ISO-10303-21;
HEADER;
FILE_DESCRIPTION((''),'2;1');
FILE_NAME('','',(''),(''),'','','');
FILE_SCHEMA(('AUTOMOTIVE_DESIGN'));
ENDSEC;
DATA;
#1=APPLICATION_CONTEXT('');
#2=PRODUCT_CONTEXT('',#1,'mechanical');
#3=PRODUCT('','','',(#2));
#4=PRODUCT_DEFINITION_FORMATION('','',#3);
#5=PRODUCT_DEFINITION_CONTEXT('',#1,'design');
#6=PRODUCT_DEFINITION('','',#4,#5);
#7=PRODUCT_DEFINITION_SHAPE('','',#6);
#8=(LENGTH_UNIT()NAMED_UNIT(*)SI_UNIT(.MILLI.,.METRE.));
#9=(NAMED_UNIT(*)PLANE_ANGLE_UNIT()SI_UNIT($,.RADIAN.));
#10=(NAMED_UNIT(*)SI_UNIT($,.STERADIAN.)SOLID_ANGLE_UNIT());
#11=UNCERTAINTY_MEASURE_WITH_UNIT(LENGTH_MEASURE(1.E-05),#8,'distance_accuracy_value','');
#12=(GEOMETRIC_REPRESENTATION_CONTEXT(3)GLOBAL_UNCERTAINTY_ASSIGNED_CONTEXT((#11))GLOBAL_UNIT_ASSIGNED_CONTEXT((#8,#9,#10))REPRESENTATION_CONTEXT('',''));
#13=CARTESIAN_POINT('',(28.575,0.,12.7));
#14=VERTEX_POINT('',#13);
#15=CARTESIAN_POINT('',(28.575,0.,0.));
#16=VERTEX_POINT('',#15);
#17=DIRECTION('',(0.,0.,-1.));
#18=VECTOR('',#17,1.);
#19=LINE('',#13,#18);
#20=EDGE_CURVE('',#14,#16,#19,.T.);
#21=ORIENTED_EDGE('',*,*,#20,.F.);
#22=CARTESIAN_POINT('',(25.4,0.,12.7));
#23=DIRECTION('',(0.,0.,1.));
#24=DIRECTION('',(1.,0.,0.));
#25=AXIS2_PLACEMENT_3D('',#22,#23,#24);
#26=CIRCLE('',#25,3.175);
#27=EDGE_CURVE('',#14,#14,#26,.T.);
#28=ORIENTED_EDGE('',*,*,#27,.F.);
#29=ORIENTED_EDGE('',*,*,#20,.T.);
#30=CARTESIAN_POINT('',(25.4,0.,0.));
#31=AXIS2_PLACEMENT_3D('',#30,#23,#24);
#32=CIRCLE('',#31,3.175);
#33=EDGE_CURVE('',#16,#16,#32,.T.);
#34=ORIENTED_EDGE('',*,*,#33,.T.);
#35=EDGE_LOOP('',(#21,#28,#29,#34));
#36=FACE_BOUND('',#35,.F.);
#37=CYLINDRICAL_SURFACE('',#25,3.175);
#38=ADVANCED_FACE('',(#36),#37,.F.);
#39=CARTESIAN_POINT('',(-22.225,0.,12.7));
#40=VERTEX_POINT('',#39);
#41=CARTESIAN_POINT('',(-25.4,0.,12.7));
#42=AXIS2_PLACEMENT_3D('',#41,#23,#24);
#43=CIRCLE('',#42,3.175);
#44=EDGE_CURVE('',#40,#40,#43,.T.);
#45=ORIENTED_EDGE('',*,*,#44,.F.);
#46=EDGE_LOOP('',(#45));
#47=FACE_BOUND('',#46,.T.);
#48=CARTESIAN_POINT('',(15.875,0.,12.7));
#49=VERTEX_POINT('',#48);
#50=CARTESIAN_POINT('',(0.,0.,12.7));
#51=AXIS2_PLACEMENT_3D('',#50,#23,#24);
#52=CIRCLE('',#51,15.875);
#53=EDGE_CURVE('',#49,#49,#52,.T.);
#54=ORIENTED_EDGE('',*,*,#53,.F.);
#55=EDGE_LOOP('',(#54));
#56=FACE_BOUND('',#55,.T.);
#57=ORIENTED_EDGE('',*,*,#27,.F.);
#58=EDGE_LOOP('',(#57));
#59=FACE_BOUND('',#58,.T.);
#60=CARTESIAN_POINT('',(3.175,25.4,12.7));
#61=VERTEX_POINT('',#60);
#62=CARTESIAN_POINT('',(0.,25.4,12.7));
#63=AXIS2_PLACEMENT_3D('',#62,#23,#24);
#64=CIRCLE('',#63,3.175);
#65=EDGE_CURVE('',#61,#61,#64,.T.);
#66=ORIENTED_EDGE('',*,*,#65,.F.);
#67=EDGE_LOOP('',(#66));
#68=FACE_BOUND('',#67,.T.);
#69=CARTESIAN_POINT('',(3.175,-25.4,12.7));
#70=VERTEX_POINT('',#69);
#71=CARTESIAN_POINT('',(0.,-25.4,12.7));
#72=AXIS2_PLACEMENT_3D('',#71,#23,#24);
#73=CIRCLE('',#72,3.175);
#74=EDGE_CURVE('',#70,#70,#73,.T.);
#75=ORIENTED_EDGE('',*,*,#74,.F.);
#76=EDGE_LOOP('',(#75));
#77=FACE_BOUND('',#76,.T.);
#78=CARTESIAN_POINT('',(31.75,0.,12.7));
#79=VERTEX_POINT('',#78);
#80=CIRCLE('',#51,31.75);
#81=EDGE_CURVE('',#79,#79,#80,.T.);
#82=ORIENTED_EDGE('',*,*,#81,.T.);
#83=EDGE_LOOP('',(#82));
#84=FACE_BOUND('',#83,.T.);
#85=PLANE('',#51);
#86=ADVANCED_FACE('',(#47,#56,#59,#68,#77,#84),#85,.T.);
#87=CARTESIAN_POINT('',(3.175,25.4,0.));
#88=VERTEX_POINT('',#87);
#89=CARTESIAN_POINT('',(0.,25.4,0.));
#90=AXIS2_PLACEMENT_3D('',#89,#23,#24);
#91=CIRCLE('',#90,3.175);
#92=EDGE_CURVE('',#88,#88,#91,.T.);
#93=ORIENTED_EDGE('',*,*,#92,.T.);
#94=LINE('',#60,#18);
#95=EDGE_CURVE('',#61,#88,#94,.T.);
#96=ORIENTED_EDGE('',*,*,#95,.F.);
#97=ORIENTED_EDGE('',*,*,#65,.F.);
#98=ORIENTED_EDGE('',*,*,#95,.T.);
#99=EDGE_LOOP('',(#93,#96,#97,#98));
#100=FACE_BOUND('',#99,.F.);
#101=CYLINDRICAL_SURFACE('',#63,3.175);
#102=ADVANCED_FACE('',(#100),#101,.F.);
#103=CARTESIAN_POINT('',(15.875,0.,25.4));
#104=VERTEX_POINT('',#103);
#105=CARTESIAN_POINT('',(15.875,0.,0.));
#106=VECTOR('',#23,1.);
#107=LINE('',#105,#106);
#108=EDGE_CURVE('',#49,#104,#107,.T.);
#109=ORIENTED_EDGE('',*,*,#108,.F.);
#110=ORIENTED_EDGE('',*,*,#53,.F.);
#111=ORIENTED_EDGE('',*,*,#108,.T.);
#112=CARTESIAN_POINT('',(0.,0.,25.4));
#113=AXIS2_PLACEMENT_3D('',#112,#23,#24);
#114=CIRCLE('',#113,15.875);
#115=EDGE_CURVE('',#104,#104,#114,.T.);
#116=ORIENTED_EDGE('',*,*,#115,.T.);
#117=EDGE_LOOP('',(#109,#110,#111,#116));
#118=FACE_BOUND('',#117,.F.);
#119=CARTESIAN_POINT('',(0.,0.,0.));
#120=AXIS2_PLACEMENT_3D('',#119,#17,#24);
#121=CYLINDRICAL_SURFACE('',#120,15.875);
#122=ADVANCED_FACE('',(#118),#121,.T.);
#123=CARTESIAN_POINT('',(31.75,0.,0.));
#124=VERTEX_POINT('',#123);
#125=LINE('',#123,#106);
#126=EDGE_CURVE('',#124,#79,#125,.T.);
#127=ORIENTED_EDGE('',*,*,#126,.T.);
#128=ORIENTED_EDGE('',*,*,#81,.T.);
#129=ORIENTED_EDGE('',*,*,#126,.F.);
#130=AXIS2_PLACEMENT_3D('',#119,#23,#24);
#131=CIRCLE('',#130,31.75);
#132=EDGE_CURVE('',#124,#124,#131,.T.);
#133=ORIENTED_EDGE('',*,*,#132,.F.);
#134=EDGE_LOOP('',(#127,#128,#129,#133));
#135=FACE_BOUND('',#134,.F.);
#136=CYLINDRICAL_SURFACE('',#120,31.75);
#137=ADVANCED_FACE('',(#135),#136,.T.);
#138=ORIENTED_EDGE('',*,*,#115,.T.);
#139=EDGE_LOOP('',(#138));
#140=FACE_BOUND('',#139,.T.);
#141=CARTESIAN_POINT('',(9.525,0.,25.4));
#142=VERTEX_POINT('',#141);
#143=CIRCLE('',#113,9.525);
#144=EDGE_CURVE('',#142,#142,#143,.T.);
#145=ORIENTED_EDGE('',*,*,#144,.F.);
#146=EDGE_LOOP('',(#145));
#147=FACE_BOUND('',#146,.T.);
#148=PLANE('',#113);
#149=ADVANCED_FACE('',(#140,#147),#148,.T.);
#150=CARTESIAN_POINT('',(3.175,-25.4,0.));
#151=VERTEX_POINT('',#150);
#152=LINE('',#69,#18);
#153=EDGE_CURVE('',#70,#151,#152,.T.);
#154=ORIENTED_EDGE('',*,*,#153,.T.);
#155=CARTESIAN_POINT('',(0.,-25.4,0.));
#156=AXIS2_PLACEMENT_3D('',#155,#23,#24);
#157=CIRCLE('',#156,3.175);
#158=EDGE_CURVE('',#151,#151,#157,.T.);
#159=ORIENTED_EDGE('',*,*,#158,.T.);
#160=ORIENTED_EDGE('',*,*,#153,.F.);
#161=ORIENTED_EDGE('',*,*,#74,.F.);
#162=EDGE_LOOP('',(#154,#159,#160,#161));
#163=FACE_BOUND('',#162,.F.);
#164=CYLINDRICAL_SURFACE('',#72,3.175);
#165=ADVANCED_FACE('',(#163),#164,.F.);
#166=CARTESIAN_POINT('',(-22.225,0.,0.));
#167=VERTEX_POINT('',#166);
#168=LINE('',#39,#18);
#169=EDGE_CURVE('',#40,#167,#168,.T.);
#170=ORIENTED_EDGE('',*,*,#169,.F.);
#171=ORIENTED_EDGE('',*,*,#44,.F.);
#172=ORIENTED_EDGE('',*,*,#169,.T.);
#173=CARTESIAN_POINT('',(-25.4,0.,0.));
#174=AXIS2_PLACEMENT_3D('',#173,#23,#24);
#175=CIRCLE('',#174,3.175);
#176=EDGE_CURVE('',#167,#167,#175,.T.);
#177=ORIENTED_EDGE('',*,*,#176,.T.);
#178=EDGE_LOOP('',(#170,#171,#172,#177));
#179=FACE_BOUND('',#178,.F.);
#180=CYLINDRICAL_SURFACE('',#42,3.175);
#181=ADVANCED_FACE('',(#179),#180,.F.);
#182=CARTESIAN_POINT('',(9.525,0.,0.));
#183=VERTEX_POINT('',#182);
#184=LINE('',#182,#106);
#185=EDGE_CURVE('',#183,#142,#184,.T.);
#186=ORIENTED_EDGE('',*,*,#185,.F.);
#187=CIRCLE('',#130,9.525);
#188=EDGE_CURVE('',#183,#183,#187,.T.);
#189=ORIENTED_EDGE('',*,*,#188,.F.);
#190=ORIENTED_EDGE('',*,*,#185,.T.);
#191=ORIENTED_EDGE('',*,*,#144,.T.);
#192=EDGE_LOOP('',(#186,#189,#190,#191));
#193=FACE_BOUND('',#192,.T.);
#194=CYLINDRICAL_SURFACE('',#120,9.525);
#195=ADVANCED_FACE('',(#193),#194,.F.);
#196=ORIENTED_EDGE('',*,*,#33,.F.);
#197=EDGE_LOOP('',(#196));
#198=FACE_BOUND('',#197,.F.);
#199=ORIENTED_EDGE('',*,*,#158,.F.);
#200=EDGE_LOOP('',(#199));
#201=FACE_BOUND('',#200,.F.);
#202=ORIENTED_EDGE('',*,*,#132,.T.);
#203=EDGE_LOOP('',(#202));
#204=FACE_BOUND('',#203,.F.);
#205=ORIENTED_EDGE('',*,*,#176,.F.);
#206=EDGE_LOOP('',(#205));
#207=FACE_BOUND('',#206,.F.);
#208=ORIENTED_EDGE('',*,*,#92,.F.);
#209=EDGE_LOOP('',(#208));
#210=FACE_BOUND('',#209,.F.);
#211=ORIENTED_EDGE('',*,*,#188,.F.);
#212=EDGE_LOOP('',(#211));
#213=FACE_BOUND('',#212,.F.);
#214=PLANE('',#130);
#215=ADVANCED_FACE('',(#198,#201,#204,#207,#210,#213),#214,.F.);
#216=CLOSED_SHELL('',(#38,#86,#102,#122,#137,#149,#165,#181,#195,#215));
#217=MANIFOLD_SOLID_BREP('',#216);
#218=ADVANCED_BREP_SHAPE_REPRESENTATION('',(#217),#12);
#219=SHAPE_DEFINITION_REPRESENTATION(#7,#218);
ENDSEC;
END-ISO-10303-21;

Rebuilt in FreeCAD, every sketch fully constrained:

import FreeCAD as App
import Part
import Sketcher
Q = App.Units.Quantity

doc = App.newDocument("Part")
params = doc.addObject("Spreadsheet::Sheet", "Params")
for row, (alias, value) in enumerate([
    ("sketch1_diameter", "1.25 in"),
    ("sketch1_diameter2", "0.75 in"),
    ("pad1_length", "1 in"),
    ("sketch2_diameter", "2.5 in"),
    ("sketch2_diameter2", "1.25 in"),
    ("pad2_length", "0.5 in"),
    ("sketch3_diameter", "0.25 in"),
], start=1):
    params.set(f"A{row}", alias)
    params.set(f"B{row}", "=" + value)
    params.setAlias(f"B{row}", alias)

body = doc.addObject("PartDesign::Body", "Body")

sketch1 = doc.addObject("Sketcher::SketchObject", "Sketch")
body.addObject(sketch1)
sketch1.AttachmentSupport = (doc.XY_Plane, [""])
sketch1.MapMode = "FlatFace"
sketch1.addGeometry([
    Part.Circle(App.Vector(0, 0, 0), App.Vector(0, 0, 1), 16),
    Part.Circle(App.Vector(0, 0, 0), App.Vector(0, 0, 1), 10),
], False)
sketch1.addConstraint([
    Sketcher.Constraint("Coincident", 0, 3, -1, 1),
    Sketcher.Constraint("Coincident", 1, 3, -1, 1),
    Sketcher.Constraint("Diameter", 0, Q("1.25 in")),
    Sketcher.Constraint("Diameter", 1, Q("0.75 in")),
])
sketch1.setExpression("Constraints[2]", "Params.sketch1_diameter")
sketch1.setExpression("Constraints[3]", "Params.sketch1_diameter2")
pad1 = doc.addObject("PartDesign::Pad", "Pad")
body.addObject(pad1)
pad1.Profile = sketch1
pad1.setExpression("Length", "Params.pad1_length")

sketch2 = doc.addObject("Sketcher::SketchObject", "Sketch001")
body.addObject(sketch2)
sketch2.AttachmentSupport = (doc.XY_Plane, [""])
sketch2.MapMode = "FlatFace"
sketch2.addGeometry([
    Part.Circle(App.Vector(0, 0, 0), App.Vector(0, 0, 1), 32),
    Part.Circle(App.Vector(0, 0, 0), App.Vector(0, 0, 1), 16),
], False)
sketch2.addConstraint([
    Sketcher.Constraint("Coincident", 0, 3, -1, 1),
    Sketcher.Constraint("Coincident", 1, 3, -1, 1),
    Sketcher.Constraint("Diameter", 0, Q("2.5 in")),
    Sketcher.Constraint("Diameter", 1, Q("1.25 in")),
])
sketch2.setExpression("Constraints[2]", "Params.sketch2_diameter")
sketch2.setExpression("Constraints[3]", "Params.sketch2_diameter2")
pad2 = doc.addObject("PartDesign::Pad", "Pad001")
body.addObject(pad2)
pad2.Profile = sketch2
pad2.setExpression("Length", "Params.pad2_length")

sketch3 = doc.addObject("Sketcher::SketchObject", "Sketch002")
body.addObject(sketch3)
sketch3.AttachmentSupport = (doc.XY_Plane, [""])
sketch3.MapMode = "FlatFace"
sketch3.AttachmentOffset = App.Placement(App.Vector(0, 0, 0.5 * 25.4), App.Rotation())
sketch3.addGeometry([
    Part.Circle(App.Vector(0, 25.4, 0), App.Vector(0, 0, 1), 3.2),
    Part.Circle(App.Vector(25.4, 0, 0), App.Vector(0, 0, 1), 3.2),
    Part.Circle(App.Vector(0, -25.4, 0), App.Vector(0, 0, 1), 3.2),
    Part.Circle(App.Vector(-25.4, 0, 0), App.Vector(0, 0, 1), 3.2),
], False)
sketch3.addConstraint([
    Sketcher.Constraint("Equal", 0, 1),
    Sketcher.Constraint("Equal", 1, 2),
    Sketcher.Constraint("Equal", 2, 3),
    Sketcher.Constraint("Symmetric", 0, 3, 2, 3, -1, 1),
    Sketcher.Constraint("Symmetric", 1, 3, 3, 3, -1, 1),
    Sketcher.Constraint("PointOnObject", 0, 3, -2),
    Sketcher.Constraint("PointOnObject", 1, 3, -1),
    Sketcher.Constraint("Diameter", 0, Q("0.25 in")),
    Sketcher.Constraint("DistanceY", -1, 1, 0, 3, Q("1 in")),
    Sketcher.Constraint("DistanceX", -1, 1, 1, 3, Q("1 in")),
])
sketch3.setExpression("Constraints[7]", "Params.sketch3_diameter")
pocket1 = doc.addObject("PartDesign::Pocket", "Pocket")
body.addObject(pocket1)
pocket1.Profile = sketch3
pocket1.Type = "ThroughAll"

doc.recompute()
